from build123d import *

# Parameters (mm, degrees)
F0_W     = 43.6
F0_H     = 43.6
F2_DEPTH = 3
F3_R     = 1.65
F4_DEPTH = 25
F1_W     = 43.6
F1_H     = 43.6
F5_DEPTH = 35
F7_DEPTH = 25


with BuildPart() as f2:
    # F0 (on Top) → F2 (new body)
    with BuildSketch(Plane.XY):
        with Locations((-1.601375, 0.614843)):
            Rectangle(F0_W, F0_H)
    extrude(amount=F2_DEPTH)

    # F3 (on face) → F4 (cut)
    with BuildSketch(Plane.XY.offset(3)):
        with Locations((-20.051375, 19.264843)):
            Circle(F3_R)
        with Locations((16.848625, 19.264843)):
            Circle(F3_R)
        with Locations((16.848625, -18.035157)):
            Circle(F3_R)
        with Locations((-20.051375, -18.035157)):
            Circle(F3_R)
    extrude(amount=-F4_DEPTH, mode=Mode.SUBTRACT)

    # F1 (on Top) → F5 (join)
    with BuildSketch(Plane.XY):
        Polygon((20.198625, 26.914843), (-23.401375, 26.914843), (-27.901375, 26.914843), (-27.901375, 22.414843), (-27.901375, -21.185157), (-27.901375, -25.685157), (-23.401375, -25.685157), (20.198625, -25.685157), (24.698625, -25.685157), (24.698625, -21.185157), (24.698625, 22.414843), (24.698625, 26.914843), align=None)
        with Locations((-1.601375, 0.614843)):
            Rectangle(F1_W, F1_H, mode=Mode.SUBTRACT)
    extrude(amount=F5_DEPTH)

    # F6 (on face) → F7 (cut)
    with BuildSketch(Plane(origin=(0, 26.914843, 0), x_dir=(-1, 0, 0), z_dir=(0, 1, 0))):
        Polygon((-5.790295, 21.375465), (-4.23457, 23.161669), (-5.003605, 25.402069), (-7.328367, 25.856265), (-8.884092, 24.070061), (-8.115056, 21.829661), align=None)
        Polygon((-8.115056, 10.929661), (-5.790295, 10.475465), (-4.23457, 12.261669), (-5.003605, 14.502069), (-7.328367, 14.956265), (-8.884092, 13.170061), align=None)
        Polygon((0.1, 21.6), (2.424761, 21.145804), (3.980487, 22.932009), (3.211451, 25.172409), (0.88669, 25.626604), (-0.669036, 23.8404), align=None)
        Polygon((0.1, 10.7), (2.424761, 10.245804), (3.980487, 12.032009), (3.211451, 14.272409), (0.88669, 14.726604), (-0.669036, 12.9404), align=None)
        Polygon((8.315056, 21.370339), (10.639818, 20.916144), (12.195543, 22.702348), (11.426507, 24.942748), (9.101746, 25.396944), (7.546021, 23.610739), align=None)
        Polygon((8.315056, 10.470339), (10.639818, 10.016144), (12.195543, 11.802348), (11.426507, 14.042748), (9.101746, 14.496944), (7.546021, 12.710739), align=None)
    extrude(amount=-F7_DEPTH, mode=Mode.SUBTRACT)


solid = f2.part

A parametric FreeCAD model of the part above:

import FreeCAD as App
import Part
import Sketcher
from FreeCAD import Vector


def add_polygon(sketch, points):
    """Adds a closed chain of lines whose ends are joined by coincident constraints."""
    first, n = sketch.GeometryCount, len(points)
    for a, b in zip(points, points[1:] + points[:1]):
        sketch.addGeometry(Part.LineSegment(App.Vector(*a, 0), App.Vector(*b, 0)), False)
    for i in range(n):
        sketch.addConstraint(Sketcher.Constraint("Coincident", first + i, 2, first + (i + 1) % n, 1))

doc = App.newDocument("Part")
body = doc.addObject("PartDesign::Body", "Body")

# Sketch on XY plane
sketch1 = body.newObject("Sketcher::SketchObject", "Sketch")
sketch1.AttachmentSupport = (doc.getObject("XY_Plane"), [""])
sketch1.MapMode = "FlatFace"
add_polygon(sketch1, [(-23, 22), (-23, -21), (20, -21), (20, 22)])  # lines 0-3
sketch1.addConstraint(Sketcher.Constraint("Vertical", 0))
sketch1.addConstraint(Sketcher.Constraint("Horizontal", 1))
sketch1.addConstraint(Sketcher.Constraint("Vertical", 2))
sketch1.addConstraint(Sketcher.Constraint("Horizontal", 3))
sketch1.addConstraint(Sketcher.Constraint("Equal", 3, 0))
sketch1.addConstraint(Sketcher.Constraint("DistanceX", 1, 1, 1, 2, 43.6))
sketch1.addConstraint(Sketcher.Constraint("DistanceX", 0, 2, -1, 1, 23.401375))
sketch1.addConstraint(Sketcher.Constraint("DistanceY", 0, 2, -1, 1, 21.185157))
pad1 = body.newObject("PartDesign::Pad", "Pad")
pad1.Profile = sketch1
pad1.Length = 3

# Sketch on XY plane
sketch2 = body.newObject("Sketcher::SketchObject", "Sketch001")
sketch2.AttachmentSupport = (doc.getObject("XY_Plane"), [""])
sketch2.MapMode = "FlatFace"
sketch2.AttachmentOffset = App.Placement(Vector(0, 0, 3), App.Rotation())
sketch2.addGeometry(Part.Circle(Vector(-20.1, 19.3, 0), Vector(0, 0, 1), 1.6), False)
sketch2.addGeometry(Part.Circle(Vector(16.8, 19.3, 0), Vector(0, 0, 1), 1.6), False)
sketch2.addGeometry(Part.Circle(Vector(16.8, -18, 0), Vector(0, 0, 1), 1.6), False)
sketch2.addGeometry(Part.Circle(Vector(-20.1, -18, 0), Vector(0, 0, 1), 1.6), False)
sketch2.addConstraint(Sketcher.Constraint("Equal", 0, 1))
sketch2.addConstraint(Sketcher.Constraint("Equal", 1, 2))
sketch2.addConstraint(Sketcher.Constraint("Equal", 2, 3))
sketch2.addConstraint(Sketcher.Constraint("Horizontal", 0, 3, 1, 3))
sketch2.addConstraint(Sketcher.Constraint("Horizontal", 2, 3, 3, 3))
sketch2.addConstraint(Sketcher.Constraint("Vertical", 1, 3, 2, 3))
sketch2.addConstraint(Sketcher.Constraint("Vertical", 0, 3, 3, 3))
sketch2.addConstraint(Sketcher.Constraint("Diameter", 0, 3.3))
sketch2.addConstraint(Sketcher.Constraint("DistanceX", 0, 3, 1, 3, 36.9))
sketch2.addConstraint(Sketcher.Constraint("DistanceY", 2, 3, 1, 3, 37.3))
sketch2.addConstraint(Sketcher.Constraint("DistanceX", 0, 3, -1, 1, 20.051375))
sketch2.addConstraint(Sketcher.Constraint("DistanceY", -1, 1, 0, 3, 19.264843))
pocket1 = body.newObject("PartDesign::Pocket", "Pocket")
pocket1.Profile = sketch2
pocket1.Length = 25

# Sketch on XY plane
sketch3 = body.newObject("Sketcher::SketchObject", "Sketch002")
sketch3.AttachmentSupport = (doc.getObject("XY_Plane"), [""])
sketch3.MapMode = "FlatFace"
add_polygon(sketch3, [(-28, 27), (-28, -26), (25, -26), (25, 27)])  # lines 0-3
add_polygon(sketch3, [(20, -21), (-23, -21), (-23, 22), (20, 22)])  # lines 4-7
sketch3.addConstraint(Sketcher.Constraint("Vertical", 0))
sketch3.addConstraint(Sketcher.Constraint("Horizontal", 1))
sketch3.addConstraint(Sketcher.Constraint("Vertical", 2))
sketch3.addConstraint(Sketcher.Constraint("Horizontal", 3))
sketch3.addConstraint(Sketcher.Constraint("Horizontal", 4))
sketch3.addConstraint(Sketcher.Constraint("Vertical", 5))
sketch3.addConstraint(Sketcher.Constraint("Horizontal", 6))
sketch3.addConstraint(Sketcher.Constraint("Vertical", 7))
sketch3.addConstraint(Sketcher.Constraint("Equal", 3, 0))
sketch3.addConstraint(Sketcher.Constraint("Equal", 6, 5))
sketch3.addConstraint(Sketcher.Constraint("DistanceX", 1, 1, 1, 2, 52.6))
sketch3.addConstraint(Sketcher.Constraint("DistanceX", 4, 2, 4, 1, 43.6))
sketch3.addConstraint(Sketcher.Constraint("DistanceX", 0, 2, 4, 2, 4.5))
sketch3.addConstraint(Sketcher.Constraint("DistanceY", 0, 2, 4, 2, 4.5))
sketch3.addConstraint(Sketcher.Constraint("DistanceX", 0, 2, -1, 1, 27.901375))
sketch3.addConstraint(Sketcher.Constraint("DistanceY", 0, 2, -1, 1, 25.685157))
pad2 = body.newObject("PartDesign::Pad", "Pad001")
pad2.Profile = sketch3
pad2.Length = 35

# Sketch on XZ plane
sketch4 = body.newObject("Sketcher::SketchObject", "Sketch003")
sketch4.AttachmentSupport = (doc.getObject("XZ_Plane"), [""])
sketch4.MapMode = "FlatFace"
sketch4.AttachmentOffset = App.Placement(Vector(0, 0, -26.914843), App.Rotation())
add_polygon(sketch4, [(5.8, 21.4), (4.2, 23.2), (5, 25.4), (7.3, 25.9), (8.9, 24.1), (8.1, 21.8)])  # lines 0-5
add_polygon(sketch4, [(8.1, 10.9), (5.8, 10.5), (4.2, 12.3), (5, 14.5), (7.3, 15), (8.9, 13.2)])  # lines 6-11
add_polygon(sketch4, [(-0.1, 21.6), (-2.4, 21.1), (-4, 22.9), (-3.2, 25.2), (-0.9, 25.6), (0.7, 23.8)])  # lines 12-17
add_polygon(sketch4, [(-0.1, 10.7), (-2.4, 10.2), (-4, 12), (-3.2, 14.3), (-0.9, 14.7), (0.7, 12.9)])  # lines 18-23
add_polygon(sketch4, [(-8.3, 21.4), (-10.6, 20.9), (-12.2, 22.7), (-11.4, 24.9), (-9.1, 25.4), (-7.5, 23.6)])  # lines 24-29
add_polygon(sketch4, [(-8.3, 10.5), (-10.6, 10), (-12.2, 11.8), (-11.4, 14), (-9.1, 14.5), (-7.5, 12.7)])  # lines 30-35
sketch4.addConstraint(Sketcher.Constraint("Parallel", 0, 3))
sketch4.addConstraint(Sketcher.Constraint("Parallel", 1, 4))
sketch4.addConstraint(Sketcher.Constraint("Parallel", 2, 5))
sketch4.addConstraint(Sketcher.Constraint("Parallel", 5, 6))
sketch4.addConstraint(Sketcher.Constraint("Parallel", 3, 7))
sketch4.addConstraint(Sketcher.Constraint("Parallel", 4, 8))
sketch4.addConstraint(Sketcher.Constraint("Parallel", 6, 9))
sketch4.addConstraint(Sketcher.Constraint("Parallel", 7, 10))
sketch4.addConstraint(Sketcher.Constraint("Parallel", 8, 11))
sketch4.addConstraint(Sketcher.Constraint("Parallel", 9, 12))
sketch4.addConstraint(Sketcher.Constraint("Parallel", 10, 13))
sketch4.addConstraint(Sketcher.Constraint("Parallel", 11, 14))
sketch4.addConstraint(Sketcher.Constraint("Parallel", 12, 15))
sketch4.addConstraint(Sketcher.Constraint("Parallel", 13, 16))
sketch4.addConstraint(Sketcher.Constraint("Parallel", 14, 17))
sketch4.addConstraint(Sketcher.Constraint("Parallel", 15, 18))
sketch4.addConstraint(Sketcher.Constraint("Parallel", 16, 19))
sketch4.addConstraint(Sketcher.Constraint("Parallel", 17, 20))
sketch4.addConstraint(Sketcher.Constraint("Parallel", 18, 21))
sketch4.addConstraint(Sketcher.Constraint("Parallel", 19, 22))
sketch4.addConstraint(Sketcher.Constraint("Parallel", 20, 23))
sketch4.addConstraint(Sketcher.Constraint("Parallel", 21, 24))
sketch4.addConstraint(Sketcher.Constraint("Parallel", 22, 25))
sketch4.addConstraint(Sketcher.Constraint("Parallel", 23, 26))
sketch4.addConstraint(Sketcher.Constraint("Parallel", 24, 27))
sketch4.addConstraint(Sketcher.Constraint("Parallel", 25, 28))
sketch4.addConstraint(Sketcher.Constraint("Parallel", 26, 29))
sketch4.addConstraint(Sketcher.Constraint("Parallel", 27, 30))
sketch4.addConstraint(Sketcher.Constraint("Parallel", 28, 31))
sketch4.addConstraint(Sketcher.Constraint("Parallel", 29, 32))
sketch4.addConstraint(Sketcher.Constraint("Parallel", 30, 33))
sketch4.addConstraint(Sketcher.Constraint("Parallel", 31, 34))
sketch4.addConstraint(Sketcher.Constraint("Parallel", 32, 35))
sketch4.addConstraint(Sketcher.Constraint("Vertical", 5, 2, 6, 2))
sketch4.addConstraint(Sketcher.Constraint("Vertical", 0, 2, 7, 2))
sketch4.addConstraint(Sketcher.Constraint("Vertical", 1, 2, 8, 2))
sketch4.addConstraint(Sketcher.Constraint("Vertical", 2, 2, 9, 2))
sketch4.addConstraint(Sketcher.Constraint("Vertical", 3, 2, 10, 2))
sketch4.addConstraint(Sketcher.Constraint("Vertical", 12, 2, 18, 2))
sketch4.addConstraint(Sketcher.Constraint("Vertical", 13, 2, 19, 2))
sketch4.addConstraint(Sketcher.Constraint("Vertical", 14, 2, 20, 2))
sketch4.addConstraint(Sketcher.Constraint("Vertical", 15, 2, 21, 2))
sketch4.addConstraint(Sketcher.Constraint("Vertical", 16, 2, 22, 2))
sketch4.addConstraint(Sketcher.Constraint("Vertical", 24, 2, 30, 2))
sketch4.addConstraint(Sketcher.Constraint("Vertical", 25, 2, 31, 2))
sketch4.addConstraint(Sketcher.Constraint("Vertical", 26, 2, 32, 2))
sketch4.addConstraint(Sketcher.Constraint("Vertical", 27, 2, 33, 2))
sketch4.addConstraint(Sketcher.Constraint("Vertical", 28, 2, 34, 2))
sketch4.addConstraint(Sketcher.Constraint("Equal", 0, 1))
sketch4.addConstraint(Sketcher.Constraint("Equal", 1, 2))
sketch4.addConstraint(Sketcher.Constraint("Equal", 2, 3))
sketch4.addConstraint(Sketcher.Constraint("Equal", 11, 12))
sketch4.addConstraint(Sketcher.Constraint("Equal", 12, 13))
sketch4.addConstraint(Sketcher.Constraint("Equal", 13, 14))
sketch4.addConstraint(Sketcher.Constraint("Equal", 14, 15))
sketch4.addConstraint(Sketcher.Constraint("Equal", 23, 24))
sketch4.addConstraint(Sketcher.Constraint("Equal", 24, 25))
sketch4.addConstraint(Sketcher.Constraint("Equal", 25, 26))
sketch4.addConstraint(Sketcher.Constraint("Equal", 26, 27))
sketch4.addConstraint(Sketcher.Constraint("DistanceX", 17, 2, -1, 1, 0.1))
sketch4.addConstraint(Sketcher.Constraint("DistanceY", -1, 1, 17, 2, 21.6))
sketch4.addConstraint(Sketcher.Constraint("DistanceY", -1, 1, 23, 2, 10.7))
sketch4.addConstraint(Sketcher.Constraint("DistanceY", 6, 2, 5, 2, 10.9))
sketch4.addConstraint(Sketcher.Constraint("DistanceY", -1, 1, 16, 2, 23.8404))
sketch4.addConstraint(Sketcher.Constraint("DistanceY", 5, 2, 2, 2, 4.4808))
sketch4.addConstraint(Sketcher.Constraint("DistanceX", -1, 1, 0, 2, 4.23457))
sketch4.addConstraint(Sketcher.Constraint("DistanceY", -1, 1, 0, 2, 23.161669))
sketch4.addConstraint(Sketcher.Constraint("DistanceY", -1, 1, 3, 2, 24.070061))
sketch4.addConstraint(Sketcher.Constraint("DistanceX", 12, 2, -1, 1, 2.424761))
sketch4.addConstraint(Sketcher.Constraint("DistanceY", -1, 1, 25, 2, 22.702348))
sketch4.addConstraint(Sketcher.Constraint("DistanceX", 28, 2, -1, 1, 7.546021))
sketch4.addConstraint(Sketcher.Constraint("DistanceY", -1, 1, 34, 2, 12.710739))
pocket2 = body.newObject("PartDesign::Pocket", "Pocket001")
pocket2.Profile = sketch4
pocket2.Length = 25
pocket2.Reversed = True

doc.recompute()
